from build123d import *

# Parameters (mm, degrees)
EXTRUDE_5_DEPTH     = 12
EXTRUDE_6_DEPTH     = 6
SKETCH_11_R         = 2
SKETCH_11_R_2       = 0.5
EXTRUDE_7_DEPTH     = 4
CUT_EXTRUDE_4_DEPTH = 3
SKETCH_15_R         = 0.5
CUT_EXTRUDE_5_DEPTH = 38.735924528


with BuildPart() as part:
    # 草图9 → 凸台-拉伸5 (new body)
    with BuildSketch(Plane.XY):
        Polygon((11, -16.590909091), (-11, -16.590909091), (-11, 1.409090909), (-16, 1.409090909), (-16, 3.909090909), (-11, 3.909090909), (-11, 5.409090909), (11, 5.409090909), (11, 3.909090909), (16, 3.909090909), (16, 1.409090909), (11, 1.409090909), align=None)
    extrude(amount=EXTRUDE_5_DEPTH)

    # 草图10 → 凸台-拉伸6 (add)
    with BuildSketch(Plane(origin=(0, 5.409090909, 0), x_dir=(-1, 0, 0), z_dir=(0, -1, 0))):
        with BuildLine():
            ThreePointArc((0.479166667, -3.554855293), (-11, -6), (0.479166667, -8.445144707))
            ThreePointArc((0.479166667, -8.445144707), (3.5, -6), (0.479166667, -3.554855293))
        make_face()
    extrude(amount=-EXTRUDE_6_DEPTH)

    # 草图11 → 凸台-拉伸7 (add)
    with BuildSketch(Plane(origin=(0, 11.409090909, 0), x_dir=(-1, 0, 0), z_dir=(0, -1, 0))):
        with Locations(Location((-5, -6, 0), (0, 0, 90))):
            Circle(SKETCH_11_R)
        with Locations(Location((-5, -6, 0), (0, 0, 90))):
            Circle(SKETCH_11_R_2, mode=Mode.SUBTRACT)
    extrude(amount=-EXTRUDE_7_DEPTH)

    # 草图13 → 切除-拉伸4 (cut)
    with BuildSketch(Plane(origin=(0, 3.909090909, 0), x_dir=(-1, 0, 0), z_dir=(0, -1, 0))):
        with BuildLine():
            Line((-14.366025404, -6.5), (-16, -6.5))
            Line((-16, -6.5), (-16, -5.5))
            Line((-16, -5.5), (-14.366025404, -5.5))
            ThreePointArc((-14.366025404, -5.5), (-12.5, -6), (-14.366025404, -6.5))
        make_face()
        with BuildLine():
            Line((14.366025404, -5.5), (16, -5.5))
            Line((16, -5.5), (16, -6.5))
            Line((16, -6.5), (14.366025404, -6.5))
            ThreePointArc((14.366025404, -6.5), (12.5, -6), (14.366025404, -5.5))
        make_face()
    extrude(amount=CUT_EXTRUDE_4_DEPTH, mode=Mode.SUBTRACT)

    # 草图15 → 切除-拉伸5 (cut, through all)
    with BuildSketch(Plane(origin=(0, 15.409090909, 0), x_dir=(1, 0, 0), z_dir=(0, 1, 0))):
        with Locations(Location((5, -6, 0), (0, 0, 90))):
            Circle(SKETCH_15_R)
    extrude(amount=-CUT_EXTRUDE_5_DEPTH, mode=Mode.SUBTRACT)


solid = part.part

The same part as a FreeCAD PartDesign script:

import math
import FreeCAD as App
import Part
import Sketcher
Q = App.Units.Quantity


def add_polygon(sketch, points):
    """Adds a closed chain of lines whose ends are joined by coincident constraints."""
    first, n = sketch.GeometryCount, len(points)
    for a, b in zip(points, points[1:] + points[:1]):
        sketch.addGeometry(Part.LineSegment(App.Vector(*a, 0), App.Vector(*b, 0)), False)
    for i in range(n):
        sketch.addConstraint(Sketcher.Constraint("Coincident", first + i, 2, first + (i + 1) % n, 1))

doc = App.newDocument("Part")
body = doc.addObject("PartDesign::Body", "Body")

# Sketch on XY plane
sketch1 = doc.addObject("Sketcher::SketchObject", "Sketch")
body.addObject(sketch1)
sketch1.AttachmentSupport = (doc.XY_Plane, [""])
sketch1.MapMode = "FlatFace"
add_polygon(sketch1, [(-11, -16.6), (11, -16.6), (11, 1.4), (16, 1.4), (16, 3.9), (11, 3.9), (11, 5.4), (-11, 5.4), (-11, 3.9), (-16, 3.9), (-16, 1.4), (-11, 1.4)])  # lines 0-11
sketch1.addConstraint([
    Sketcher.Constraint("Horizontal", 0),
    Sketcher.Constraint("Vertical", 1),
    Sketcher.Constraint("Horizontal", 2),
    Sketcher.Constraint("Vertical", 3),
    Sketcher.Constraint("Horizontal", 4),
    Sketcher.Constraint("Vertical", 5),
    Sketcher.Constraint("Horizontal", 6),
    Sketcher.Constraint("Vertical", 7),
    Sketcher.Constraint("Horizontal", 8),
    Sketcher.Constraint("Vertical", 9),
    Sketcher.Constraint("Horizontal", 10),
    Sketcher.Constraint("Vertical", 11),
    Sketcher.Constraint("Symmetric", 4, 2, 7, 2, -2),
    Sketcher.Constraint("Symmetric", 2, 2, 9, 2, -2),
    Sketcher.Constraint("Vertical", 1, 2, 4, 2),
    Sketcher.Constraint("Vertical", 7, 2, 10, 2),
    Sketcher.Constraint("DistanceX", 0, 1, 0, 2, Q("22 mm")),
    Sketcher.Constraint("DistanceX", 2, 1, 2, 2, Q("5 mm")),
    Sketcher.Constraint("DistanceY", 1, 1, 1, 2, Q("18 mm")),
    Sketcher.Constraint("DistanceY", 3, 1, 3, 2, Q("2.5 mm")),
    Sketcher.Constraint("DistanceY", 5, 1, 5, 2, Q("1.5 mm")),
    Sketcher.Constraint("DistanceY", 0, 2, -1, 1, Q("16.590909 mm")),
])
pad1 = doc.addObject("PartDesign::Pad", "Pad")
body.addObject(pad1)
pad1.Profile = sketch1
pad1.Length = 12

# Sketch on XZ plane
sketch2 = doc.addObject("Sketcher::SketchObject", "Sketch001")
body.addObject(sketch2)
sketch2.AttachmentSupport = (doc.XZ_Plane, [""])
sketch2.MapMode = "FlatFace"
sketch2.AttachmentOffset = App.Placement(App.Vector(0, 0, -5.409091), App.Rotation())
sketch2.addGeometry([
    Part.ArcOfCircle(Part.Circle(App.Vector(5, 6, 0), App.Vector(0, 0, 1), 6), math.radians(-156), math.radians(156)),
    Part.ArcOfCircle(Part.Circle(App.Vector(-1, 6, 0), App.Vector(0, 0, 1), 2.5), math.radians(78), math.radians(282)),
], False)
sketch2.addConstraint([
    Sketcher.Constraint("Coincident", 0, 1, 1, 2),
    Sketcher.Constraint("Coincident", 1, 1, 0, 2),
    Sketcher.Constraint("Horizontal", 0, 3, 1, 3),
    Sketcher.Constraint("Radius", 0, Q("6 mm")),
    Sketcher.Constraint("Radius", 1, Q("2.5 mm")),
    Sketcher.Constraint("DistanceX", -1, 1, 0, 3, Q("5 mm")),
    Sketcher.Constraint("DistanceY", -1, 1, 0, 3, Q("6 mm")),
    Sketcher.Constraint("DistanceX", 1, 3, -1, 1, Q("1 mm")),
])
pad2 = doc.addObject("PartDesign::Pad", "Pad001")
body.addObject(pad2)
pad2.Profile = sketch2
pad2.Length = 6
pad2.Reversed = True

# Sketch on XZ plane
sketch3 = doc.addObject("Sketcher::SketchObject", "Sketch002")
body.addObject(sketch3)
sketch3.AttachmentSupport = (doc.XZ_Plane, [""])
sketch3.MapMode = "FlatFace"
sketch3.AttachmentOffset = App.Placement(App.Vector(0, 0, -11.409091), App.Rotation())
sketch3.addGeometry([
    Part.Circle(App.Vector(5, 6, 0), App.Vector(0, 0, 1), 2),
    Part.Circle(App.Vector(5, 6, 0), App.Vector(0, 0, 1), 0.5),
], False)
sketch3.addConstraint([
    Sketcher.Constraint("Coincident", 1, 3, 0, 3),
    Sketcher.Constraint("Diameter", 0, Q("4 mm")),
    Sketcher.Constraint("Diameter", 1, Q("1 mm")),
    Sketcher.Constraint("DistanceX", -1, 1, 0, 3, Q("5 mm")),
    Sketcher.Constraint("DistanceY", -1, 1, 0, 3, Q("6 mm")),
])
pad3 = doc.addObject("PartDesign::Pad", "Pad002")
body.addObject(pad3)
pad3.Profile = sketch3
pad3.Length = 4
pad3.Reversed = True

# Sketch on XZ plane
sketch4 = doc.addObject("Sketcher::SketchObject", "Sketch003")
body.addObject(sketch4)
sketch4.AttachmentSupport = (doc.XZ_Plane, [""])
sketch4.MapMode = "FlatFace"
sketch4.AttachmentOffset = App.Placement(App.Vector(0, 0, -3.909091), App.Rotation())
sketch4.addGeometry([
    Part.LineSegment(App.Vector(16, 6.5, 0), App.Vector(14.4, 6.5, 0)),  # 0
    Part.ArcOfCircle(Part.Circle(App.Vector(13.5, 6, 0), App.Vector(0, 0, 1), 1), math.radians(30), math.radians(330)),  # 1
    Part.LineSegment(App.Vector(14.4, 5.5, 0), App.Vector(16, 5.5, 0)),  # 2
    Part.LineSegment(App.Vector(16, 5.5, 0), App.Vector(16, 6.5, 0)),  # 3
    Part.LineSegment(App.Vector(-16, 5.5, 0), App.Vector(-14.4, 5.5, 0)),  # 4
    Part.ArcOfCircle(Part.Circle(App.Vector(-13.5, 6, 0), App.Vector(0, 0, 1), 1), math.radians(-150), math.radians(150)),  # 5
    Part.LineSegment(App.Vector(-14.4, 6.5, 0), App.Vector(-16, 6.5, 0)),  # 6
    Part.LineSegment(App.Vector(-16, 6.5, 0), App.Vector(-16, 5.5, 0)),  # 7
], False)
sketch4.addConstraint([
    Sketcher.Constraint("Coincident", 0, 2, 1, 1),
    Sketcher.Constraint("Coincident", 1, 2, 2, 1),
    Sketcher.Constraint("Coincident", 2, 2, 3, 1),
    Sketcher.Constraint("Coincident", 3, 2, 0, 1),
    Sketcher.Constraint("Coincident", 4, 2, 5, 1),
    Sketcher.Constraint("Coincident", 5, 2, 6, 1),
    Sketcher.Constraint("Coincident", 6, 2, 7, 1),
    Sketcher.Constraint("Coincident", 7, 2, 4, 1),
    Sketcher.Constraint("Horizontal", 0),
    Sketcher.Constraint("Horizontal", 2),
    Sketcher.Constraint("Vertical", 3),
    Sketcher.Constraint("Horizontal", 4),
    Sketcher.Constraint("Horizontal", 6),
    Sketcher.Constraint("Vertical", 7),
    Sketcher.Constraint("Equal", 1, 5),
    Sketcher.Constraint("Symmetric", 1, 3, 5, 3, -2),
    Sketcher.Constraint("Symmetric", 3, 2, 6, 2, -2),
    Sketcher.Constraint("Horizontal", 2, 2, 4, 2),
    Sketcher.Constraint("Vertical", 0, 2, 1, 2),
    Sketcher.Constraint("Radius", 1, Q("1 mm")),
    Sketcher.Constraint("DistanceY", 3, 1, 3, 2, Q("1 mm")),
    Sketcher.Constraint("DistanceY", -1, 1, 1, 3, Q("6 mm")),
    Sketcher.Constraint("DistanceX", -1, 1, 2, 2, Q("16 mm")),
    Sketcher.Constraint("DistanceX", 5, 3, 1, 3, Q("27 mm")),
])
pocket1 = doc.addObject("PartDesign::Pocket", "Pocket")
body.addObject(pocket1)
pocket1.Profile = sketch4
pocket1.Length = 3
pocket1.Reversed = True

# Sketch on XZ plane
sketch5 = doc.addObject("Sketcher::SketchObject", "Sketch004")
body.addObject(sketch5)
sketch5.AttachmentSupport = (doc.XZ_Plane, [""])
sketch5.MapMode = "FlatFace"
sketch5.AttachmentOffset = App.Placement(App.Vector(0, 0, -15.409091), App.Rotation())
sketch5.addGeometry(Part.Circle(App.Vector(5, 6, 0), App.Vector(0, 0, 1), 0.5), False)
sketch5.addConstraint([
    Sketcher.Constraint("Diameter", 0, Q("1 mm")),
    Sketcher.Constraint("DistanceX", -1, 1, 0, 3, Q("5 mm")),
    Sketcher.Constraint("DistanceY", -1, 1, 0, 3, Q("6 mm")),
])
pocket2 = doc.addObject("PartDesign::Pocket", "Pocket001")
body.addObject(pocket2)
pocket2.Profile = sketch5
pocket2.Type = "ThroughAll"
pocket2.Reversed = True

doc.recompute()
